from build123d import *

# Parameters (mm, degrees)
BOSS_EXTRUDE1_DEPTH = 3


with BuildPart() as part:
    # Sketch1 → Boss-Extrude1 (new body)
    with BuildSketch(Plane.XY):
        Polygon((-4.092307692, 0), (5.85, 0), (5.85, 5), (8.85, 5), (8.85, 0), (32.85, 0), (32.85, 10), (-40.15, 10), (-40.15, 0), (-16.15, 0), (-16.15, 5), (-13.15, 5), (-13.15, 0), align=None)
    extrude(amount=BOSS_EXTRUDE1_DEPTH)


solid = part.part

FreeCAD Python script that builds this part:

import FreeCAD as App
import Part
import Sketcher
from FreeCAD import Vector
Q = App.Units.Quantity

doc = App.newDocument("Part")
body = doc.addObject("PartDesign::Body", "Body")

# Sketch on XY plane
sketch1 = body.newObject("Sketcher::SketchObject", "Sketch")
sketch1.AttachmentSupport = (doc.getObject("XY_Plane"), [""])
sketch1.MapMode = "FlatFace"
sketch1.addGeometry(Part.LineSegment(Vector(5.8, 0, 0), Vector(5.8, 5, 0)), False)
sketch1.addGeometry(Part.LineSegment(Vector(5.8, 5, 0), Vector(8.8, 5, 0)), False)
sketch1.addGeometry(Part.LineSegment(Vector(8.8, 5, 0), Vector(8.8, 0, 0)), False)
sketch1.addGeometry(Part.LineSegment(Vector(8.8, 0, 0), Vector(32.9, 0, 0)), False)
sketch1.addGeometry(Part.LineSegment(Vector(32.9, 0, 0), Vector(32.9, 10, 0)), False)
sketch1.addGeometry(Part.LineSegment(Vector(32.9, 10, 0), Vector(-40.1, 10, 0)), False)
sketch1.addGeometry(Part.LineSegment(Vector(-40.1, 10, 0), Vector(-40.1, 0, 0)), False)
sketch1.addGeometry(Part.LineSegment(Vector(-40.1, 0, 0), Vector(-16.1, 0, 0)), False)
sketch1.addGeometry(Part.LineSegment(Vector(-16.1, 0, 0), Vector(-16.1, 5, 0)), False)
sketch1.addGeometry(Part.LineSegment(Vector(-16.1, 5, 0), Vector(-13.2, 5, 0)), False)
sketch1.addGeometry(Part.LineSegment(Vector(-13.2, 5, 0), Vector(-13.2, 0, 0)), False)
sketch1.addGeometry(Part.LineSegment(Vector(-13.2, 0, 0), Vector(5.8, 0, 0)), False)
sketch1.addConstraint(Sketcher.Constraint("Coincident", 0, 2, 1, 1))
sketch1.addConstraint(Sketcher.Constraint("Coincident", 1, 2, 2, 1))
sketch1.addConstraint(Sketcher.Constraint("Coincident", 2, 2, 3, 1))
sketch1.addConstraint(Sketcher.Constraint("Coincident", 3, 2, 4, 1))
sketch1.addConstraint(Sketcher.Constraint("Coincident", 4, 2, 5, 1))
sketch1.addConstraint(Sketcher.Constraint("Coincident", 5, 2, 6, 1))
sketch1.addConstraint(Sketcher.Constraint("Coincident", 6, 2, 7, 1))
sketch1.addConstraint(Sketcher.Constraint("Coincident", 7, 2, 8, 1))
sketch1.addConstraint(Sketcher.Constraint("Coincident", 8, 2, 9, 1))
sketch1.addConstraint(Sketcher.Constraint("Coincident", 9, 2, 10, 1))
sketch1.addConstraint(Sketcher.Constraint("Coincident", 10, 2, 11, 1))
sketch1.addConstraint(Sketcher.Constraint("Coincident", 11, 2, 0, 1))
sketch1.addConstraint(Sketcher.Constraint("Vertical", 0))
sketch1.addConstraint(Sketcher.Constraint("Horizontal", 1))
sketch1.addConstraint(Sketcher.Constraint("Vertical", 2))
sketch1.addConstraint(Sketcher.Constraint("Horizontal", 3))
sketch1.addConstraint(Sketcher.Constraint("Vertical", 4))
sketch1.addConstraint(Sketcher.Constraint("Horizontal", 5))
sketch1.addConstraint(Sketcher.Constraint("Vertical", 6))
sketch1.addConstraint(Sketcher.Constraint("Horizontal", 7))
sketch1.addConstraint(Sketcher.Constraint("Vertical", 8))
sketch1.addConstraint(Sketcher.Constraint("Horizontal", 9))
sketch1.addConstraint(Sketcher.Constraint("Vertical", 10))
sketch1.addConstraint(Sketcher.Constraint("Horizontal", 11))
sketch1.addConstraint(Sketcher.Constraint("PointOnObject", 2, 2, -1))
sketch1.addConstraint(Sketcher.Constraint("PointOnObject", 6, 2, -1))
sketch1.addConstraint(Sketcher.Constraint("PointOnObject", 10, 2, -1))
sketch1.addConstraint(Sketcher.Constraint("Horizontal", 1, 2, 8, 2))
sketch1.addConstraint(Sketcher.Constraint("Equal", 3, 7))
sketch1.addConstraint(Sketcher.Constraint("Equal", 1, 9))
sketch1.addConstraint(Sketcher.Constraint("DistanceX", 1, 1, 1, 2, Q("3 mm")))
sketch1.addConstraint(Sketcher.Constraint("DistanceX", 3, 1, 3, 2, Q("24 mm")))
sketch1.addConstraint(Sketcher.Constraint("DistanceX", 5, 2, 5, 1, Q("73 mm")))
sketch1.addConstraint(Sketcher.Constraint("DistanceY", 0, 1, 0, 2, Q("5 mm")))
sketch1.addConstraint(Sketcher.Constraint("DistanceY", 4, 1, 4, 2, Q("10 mm")))
sketch1.addConstraint(Sketcher.Constraint("DistanceX", -1, 1, 0, 2, Q("5.85 mm")))
pad1 = body.newObject("PartDesign::Pad", "Pad")
pad1.Profile = sketch1
pad1.Length = 3

doc.recompute()
